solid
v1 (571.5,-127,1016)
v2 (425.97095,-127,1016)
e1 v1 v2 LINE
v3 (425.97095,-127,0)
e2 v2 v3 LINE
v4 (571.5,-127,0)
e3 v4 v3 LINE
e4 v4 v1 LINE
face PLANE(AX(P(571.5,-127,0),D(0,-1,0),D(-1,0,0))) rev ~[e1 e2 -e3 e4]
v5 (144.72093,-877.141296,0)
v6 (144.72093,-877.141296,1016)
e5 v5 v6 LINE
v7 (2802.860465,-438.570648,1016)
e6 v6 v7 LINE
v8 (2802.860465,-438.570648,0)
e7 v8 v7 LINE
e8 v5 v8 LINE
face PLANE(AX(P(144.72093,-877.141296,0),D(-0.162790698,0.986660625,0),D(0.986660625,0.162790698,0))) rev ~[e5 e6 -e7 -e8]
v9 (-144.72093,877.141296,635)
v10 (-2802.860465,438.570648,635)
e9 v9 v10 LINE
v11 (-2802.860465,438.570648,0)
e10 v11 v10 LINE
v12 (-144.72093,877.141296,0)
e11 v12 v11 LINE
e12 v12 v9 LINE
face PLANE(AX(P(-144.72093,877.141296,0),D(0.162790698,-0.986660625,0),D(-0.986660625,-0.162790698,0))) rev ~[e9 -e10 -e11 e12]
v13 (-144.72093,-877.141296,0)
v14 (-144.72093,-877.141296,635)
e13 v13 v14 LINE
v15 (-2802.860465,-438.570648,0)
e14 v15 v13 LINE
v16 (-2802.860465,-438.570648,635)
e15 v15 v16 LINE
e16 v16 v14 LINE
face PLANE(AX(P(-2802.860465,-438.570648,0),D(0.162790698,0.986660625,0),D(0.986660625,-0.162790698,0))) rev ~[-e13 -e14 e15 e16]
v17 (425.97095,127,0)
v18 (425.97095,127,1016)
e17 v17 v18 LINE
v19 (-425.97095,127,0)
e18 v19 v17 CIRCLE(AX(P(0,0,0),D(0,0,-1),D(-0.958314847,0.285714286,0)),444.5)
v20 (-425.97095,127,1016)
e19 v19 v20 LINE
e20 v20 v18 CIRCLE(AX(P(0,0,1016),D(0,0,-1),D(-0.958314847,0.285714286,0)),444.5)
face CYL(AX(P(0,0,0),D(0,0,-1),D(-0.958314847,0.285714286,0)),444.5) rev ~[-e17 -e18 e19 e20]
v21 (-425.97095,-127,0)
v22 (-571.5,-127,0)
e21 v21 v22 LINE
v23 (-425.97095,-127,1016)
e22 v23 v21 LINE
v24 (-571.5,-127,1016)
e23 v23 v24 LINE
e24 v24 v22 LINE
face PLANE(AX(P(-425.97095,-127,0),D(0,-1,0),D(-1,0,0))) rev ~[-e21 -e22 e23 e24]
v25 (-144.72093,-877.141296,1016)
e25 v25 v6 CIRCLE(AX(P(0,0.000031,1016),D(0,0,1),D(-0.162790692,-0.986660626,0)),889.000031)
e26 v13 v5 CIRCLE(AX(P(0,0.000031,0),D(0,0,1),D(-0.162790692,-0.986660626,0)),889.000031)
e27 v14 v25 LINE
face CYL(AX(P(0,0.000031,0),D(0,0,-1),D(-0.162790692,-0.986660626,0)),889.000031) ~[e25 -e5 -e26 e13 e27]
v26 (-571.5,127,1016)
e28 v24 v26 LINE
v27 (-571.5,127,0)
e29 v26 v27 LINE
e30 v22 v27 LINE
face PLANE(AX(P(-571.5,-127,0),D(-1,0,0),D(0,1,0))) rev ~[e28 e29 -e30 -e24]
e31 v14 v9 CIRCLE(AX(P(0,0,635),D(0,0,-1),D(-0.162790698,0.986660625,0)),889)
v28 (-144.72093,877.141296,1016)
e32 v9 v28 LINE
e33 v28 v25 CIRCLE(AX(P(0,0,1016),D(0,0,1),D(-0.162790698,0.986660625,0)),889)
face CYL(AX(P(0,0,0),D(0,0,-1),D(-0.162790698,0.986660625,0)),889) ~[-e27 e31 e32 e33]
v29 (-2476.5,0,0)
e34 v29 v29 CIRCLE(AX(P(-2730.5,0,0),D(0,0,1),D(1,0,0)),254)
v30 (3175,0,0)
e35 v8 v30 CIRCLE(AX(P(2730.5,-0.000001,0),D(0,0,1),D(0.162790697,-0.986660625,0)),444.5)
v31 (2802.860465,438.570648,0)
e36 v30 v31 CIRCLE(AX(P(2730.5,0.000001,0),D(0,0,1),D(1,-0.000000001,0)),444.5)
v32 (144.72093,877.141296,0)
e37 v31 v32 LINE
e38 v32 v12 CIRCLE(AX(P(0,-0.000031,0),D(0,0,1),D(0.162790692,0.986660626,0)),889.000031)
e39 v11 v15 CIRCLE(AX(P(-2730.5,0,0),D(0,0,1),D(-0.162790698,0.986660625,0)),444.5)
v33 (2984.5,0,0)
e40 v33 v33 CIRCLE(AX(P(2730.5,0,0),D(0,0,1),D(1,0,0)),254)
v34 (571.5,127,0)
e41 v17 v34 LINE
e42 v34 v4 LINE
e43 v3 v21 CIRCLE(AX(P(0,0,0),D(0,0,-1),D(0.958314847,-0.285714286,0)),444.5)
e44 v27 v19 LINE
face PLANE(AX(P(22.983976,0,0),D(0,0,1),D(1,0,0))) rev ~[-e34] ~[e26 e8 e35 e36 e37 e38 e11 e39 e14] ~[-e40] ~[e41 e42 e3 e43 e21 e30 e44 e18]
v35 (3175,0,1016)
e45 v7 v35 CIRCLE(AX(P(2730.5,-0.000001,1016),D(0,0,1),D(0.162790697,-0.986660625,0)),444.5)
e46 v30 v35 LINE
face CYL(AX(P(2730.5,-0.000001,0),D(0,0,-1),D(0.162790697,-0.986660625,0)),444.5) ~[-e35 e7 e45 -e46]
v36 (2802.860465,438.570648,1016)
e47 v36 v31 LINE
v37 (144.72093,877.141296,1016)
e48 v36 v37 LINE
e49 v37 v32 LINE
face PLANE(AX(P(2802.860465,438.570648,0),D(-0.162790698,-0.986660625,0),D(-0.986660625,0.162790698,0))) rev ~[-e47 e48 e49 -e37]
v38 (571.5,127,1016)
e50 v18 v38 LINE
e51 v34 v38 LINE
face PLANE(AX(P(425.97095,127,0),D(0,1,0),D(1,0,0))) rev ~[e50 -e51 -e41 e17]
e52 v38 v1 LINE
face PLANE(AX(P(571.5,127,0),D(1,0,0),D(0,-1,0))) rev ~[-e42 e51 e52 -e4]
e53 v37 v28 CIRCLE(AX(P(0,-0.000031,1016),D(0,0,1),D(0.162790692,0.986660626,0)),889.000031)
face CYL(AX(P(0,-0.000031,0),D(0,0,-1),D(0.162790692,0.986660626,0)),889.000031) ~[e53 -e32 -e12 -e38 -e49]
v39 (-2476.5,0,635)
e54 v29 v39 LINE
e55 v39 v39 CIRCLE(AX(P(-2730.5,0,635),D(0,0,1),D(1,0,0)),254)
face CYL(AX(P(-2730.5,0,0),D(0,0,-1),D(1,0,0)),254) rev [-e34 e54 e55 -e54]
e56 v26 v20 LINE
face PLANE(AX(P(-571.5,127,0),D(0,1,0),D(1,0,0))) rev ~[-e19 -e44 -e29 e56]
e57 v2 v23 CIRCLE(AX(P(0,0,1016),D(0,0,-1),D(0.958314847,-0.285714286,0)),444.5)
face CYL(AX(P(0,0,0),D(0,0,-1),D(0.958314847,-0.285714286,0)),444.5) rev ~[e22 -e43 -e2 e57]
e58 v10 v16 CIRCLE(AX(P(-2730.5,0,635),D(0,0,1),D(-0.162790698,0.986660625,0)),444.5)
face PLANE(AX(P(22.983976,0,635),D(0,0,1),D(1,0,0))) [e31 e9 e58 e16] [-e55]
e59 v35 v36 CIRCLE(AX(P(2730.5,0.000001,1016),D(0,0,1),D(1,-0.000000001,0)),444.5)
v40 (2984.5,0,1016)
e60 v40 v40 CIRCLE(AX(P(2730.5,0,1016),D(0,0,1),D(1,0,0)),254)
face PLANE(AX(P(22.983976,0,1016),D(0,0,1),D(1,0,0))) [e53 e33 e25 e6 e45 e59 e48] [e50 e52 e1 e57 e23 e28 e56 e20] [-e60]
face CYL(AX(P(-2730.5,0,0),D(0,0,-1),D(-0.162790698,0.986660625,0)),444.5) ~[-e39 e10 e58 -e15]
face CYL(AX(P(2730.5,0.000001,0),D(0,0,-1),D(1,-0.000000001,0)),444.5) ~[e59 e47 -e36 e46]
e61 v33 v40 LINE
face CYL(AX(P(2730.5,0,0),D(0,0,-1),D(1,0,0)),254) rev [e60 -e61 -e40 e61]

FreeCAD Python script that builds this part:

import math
import FreeCAD as App
import Part
import Sketcher
from FreeCAD import Vector
Q = App.Units.Quantity

doc = App.newDocument("Part")
body = doc.addObject("PartDesign::Body", "Body")

# Sketch on XY plane
sketch1 = doc.addObject("Sketcher::SketchObject", "Sketch")
body.addObject(sketch1)
sketch1.AttachmentSupport = (doc.XY_Plane, [""])
sketch1.MapMode = "FlatFace"
sketch1.addGeometry([
    Part.ArcOfCircle(Part.Circle(Vector(0, 0.000031, 0), Vector(0, 0, 1), 889.000031), math.radians(-99.368915), math.radians(-80.631085)),  # 0
    Part.LineSegment(Vector(144.72093, -877.141296, 0), Vector(2802.860465, -438.570648, 0)),  # 1
    Part.ArcOfCircle(Part.Circle(Vector(2730.5, -0.000001, 0), Vector(0, 0, 1), 444.5), math.radians(-80.631084), math.radians(0)),  # 2
    Part.ArcOfCircle(Part.Circle(Vector(2730.5, 0.000001, 0), Vector(0, 0, 1), 444.5), math.radians(0), math.radians(80.631084)),  # 3
    Part.LineSegment(Vector(2802.860465, 438.570648, 0), Vector(144.72093, 877.141296, 0)),  # 4
    Part.ArcOfCircle(Part.Circle(Vector(0, -0.000031, 0), Vector(0, 0, 1), 889.000031), math.radians(80.631085), math.radians(99.368915)),  # 5
    Part.ArcOfCircle(Part.Circle(Vector(0, 0, 0), Vector(0, 0, 1), 889), math.radians(99.368916), math.radians(260.631084)),  # 6
    Part.LineSegment(Vector(-571.5, 127, 0), Vector(-425.97095, 127, 0)),  # 7
    Part.ArcOfCircle(Part.Circle(Vector(0, 0, 0), Vector(0, 0, 1), 444.5), math.radians(16.60155), math.radians(163.39845)),  # 8
    Part.LineSegment(Vector(425.97095, 127, 0), Vector(571.5, 127, 0)),  # 9
    Part.LineSegment(Vector(571.5, 127, 0), Vector(571.5, -127, 0)),  # 10
    Part.LineSegment(Vector(571.5, -127, 0), Vector(425.97095, -127, 0)),  # 11
    Part.ArcOfCircle(Part.Circle(Vector(0, 0, 0), Vector(0, 0, 1), 444.5), math.radians(-163.39845), math.radians(-16.60155)),  # 12
    Part.LineSegment(Vector(-425.97095, -127, 0), Vector(-571.5, -127, 0)),  # 13
    Part.LineSegment(Vector(-571.5, -127, 0), Vector(-571.5, 127, 0)),  # 14
    Part.Circle(Vector(2730.5, 0, 0), Vector(0, 0, 1), 254),  # 15
], False)
sketch1.addConstraint([
    Sketcher.Constraint("Coincident", 0, 2, 1, 1),
    Sketcher.Constraint("Tangent", 1, 2, 2, 1),
    Sketcher.Constraint("Tangent", 2, 2, 3, 1),
    Sketcher.Constraint("Tangent", 3, 2, 4, 1),
    Sketcher.Constraint("Coincident", 4, 2, 5, 1),
    Sketcher.Constraint("Coincident", 5, 2, 6, 1),
    Sketcher.Constraint("Coincident", 6, 2, 0, 1),
    Sketcher.Constraint("Coincident", 7, 2, 8, 2),
    Sketcher.Constraint("Coincident", 8, 1, 9, 1),
    Sketcher.Constraint("Coincident", 9, 2, 10, 1),
    Sketcher.Constraint("Coincident", 10, 2, 11, 1),
    Sketcher.Constraint("Coincident", 11, 2, 12, 2),
    Sketcher.Constraint("Coincident", 12, 1, 13, 1),
    Sketcher.Constraint("Coincident", 13, 2, 14, 1),
    Sketcher.Constraint("Coincident", 14, 2, 7, 1),
    Sketcher.Constraint("Horizontal", 7),
    Sketcher.Constraint("Horizontal", 9),
    Sketcher.Constraint("Vertical", 10),
    Sketcher.Constraint("Horizontal", 11),
    Sketcher.Constraint("Horizontal", 13),
    Sketcher.Constraint("Vertical", 14),
    Sketcher.Constraint("Coincident", 6, 3, -1, 1),
    Sketcher.Constraint("Coincident", 8, 3, -1, 1),
    Sketcher.Constraint("Coincident", 12, 3, -1, 1),
    Sketcher.Constraint("Coincident", 15, 3, 2, 3),
    Sketcher.Constraint("Equal", 2, 3),
    Sketcher.Constraint("Equal", 0, 5),
    Sketcher.Constraint("Equal", 3, 8),
    Sketcher.Constraint("Equal", 8, 12),
    Sketcher.Constraint("Symmetric", 0, 3, 5, 3, -1, 1),
    Sketcher.Constraint("Symmetric", 9, 2, 13, 2, -1, 1),
    Sketcher.Constraint("PointOnObject", 2, 3, -1),
    Sketcher.Constraint("PointOnObject", 2, 2, -1),
    Sketcher.Constraint("Horizontal", 4, 2, 5, 2),
    Sketcher.Constraint("Horizontal", 0, 2, 6, 2),
    Sketcher.Constraint("Horizontal", 9, 2, 14, 2),
    Sketcher.Constraint("Equal", 9, 11),
    Sketcher.Constraint("Equal", 1, 4),
    Sketcher.Constraint("Diameter", 15, Q("20 in")),
    Sketcher.Constraint("Radius", 6, Q("35 in")),
    Sketcher.Constraint("Radius", 2, Q("17.5 in")),
    Sketcher.Constraint("DistanceY", 10, 2, 10, 1, Q("10 in")),
    Sketcher.Constraint("DistanceX", -1, 1, 2, 2, Q("125 in")),
    Sketcher.Constraint("DistanceX", -1, 1, 9, 2, Q("22.5 in")),
    Sketcher.Constraint("Radius", 0, Q("889.000031 mm")),
    Sketcher.Constraint("DistanceX", -1, 1, 4, 2, Q("144.72093 mm")),
])
pad1 = doc.addObject("PartDesign::Pad", "Pad")
body.addObject(pad1)
pad1.Profile = sketch1
pad1.Length = Q("40 in")

# Sketch on XY plane
sketch2 = doc.addObject("Sketcher::SketchObject", "Sketch001")
body.addObject(sketch2)
sketch2.AttachmentSupport = (doc.XY_Plane, [""])
sketch2.MapMode = "FlatFace"
sketch2.addGeometry([
    Part.ArcOfCircle(Part.Circle(Vector(0, 0.000031, 0), Vector(0, 0, 1), 889.000031), math.radians(-99.368915), math.radians(-80.631085)),  # 0
    Part.LineSegment(Vector(144.72093, -877.141296, 0), Vector(2802.860465, -438.570648, 0)),  # 1
    Part.ArcOfCircle(Part.Circle(Vector(2730.5, -0.000001, 0), Vector(0, 0, 1), 444.5), math.radians(-80.631084), math.radians(0)),  # 2
    Part.ArcOfCircle(Part.Circle(Vector(2730.5, 0.000001, 0), Vector(0, 0, 1), 444.5), math.radians(0), math.radians(80.631084)),  # 3
    Part.LineSegment(Vector(2802.860465, 438.570648, 0), Vector(144.72093, 877.141296, 0)),  # 4
    Part.ArcOfCircle(Part.Circle(Vector(0, -0.000031, 0), Vector(0, 0, 1), 889.000031), math.radians(80.631085), math.radians(99.368915)),  # 5
    Part.LineSegment(Vector(-144.72093, 877.141296, 0), Vector(-2802.860465, 438.570648, 0)),  # 6
    Part.ArcOfCircle(Part.Circle(Vector(-2730.5, 0, 0), Vector(0, 0, 1), 444.5), math.radians(99.368916), math.radians(260.631084)),  # 7
    Part.LineSegment(Vector(-2802.860465, -438.570648, 0), Vector(-144.72093, -877.141296, 0)),  # 8
    Part.Circle(Vector(-2730.5, 0, 0), Vector(0, 0, 1), 254),  # 9
    Part.LineSegment(Vector(-571.5, 127, 0), Vector(-425.97095, 127, 0)),  # 10
    Part.ArcOfCircle(Part.Circle(Vector(0, 0, 0), Vector(0, 0, 1), 444.5), math.radians(16.60155), math.radians(163.39845)),  # 11
    Part.LineSegment(Vector(425.97095, 127, 0), Vector(571.5, 127, 0)),  # 12
    Part.LineSegment(Vector(571.5, 127, 0), Vector(571.5, -127, 0)),  # 13
    Part.LineSegment(Vector(571.5, -127, 0), Vector(425.97095, -127, 0)),  # 14
    Part.ArcOfCircle(Part.Circle(Vector(0, 0, 0), Vector(0, 0, 1), 444.5), math.radians(-163.39845), math.radians(-16.60155)),  # 15
    Part.LineSegment(Vector(-425.97095, -127, 0), Vector(-571.5, -127, 0)),  # 16
    Part.LineSegment(Vector(-571.5, -127, 0), Vector(-571.5, 127, 0)),  # 17
    Part.Circle(Vector(2730.5, 0, 0), Vector(0, 0, 1), 254),  # 18
], False)
sketch2.addConstraint([
    Sketcher.Constraint("Coincident", 0, 2, 1, 1),
    Sketcher.Constraint("Tangent", 1, 2, 2, 1),
    Sketcher.Constraint("Tangent", 2, 2, 3, 1),
    Sketcher.Constraint("Tangent", 3, 2, 4, 1),
    Sketcher.Constraint("Coincident", 4, 2, 5, 1),
    Sketcher.Constraint("Coincident", 5, 2, 6, 1),
    Sketcher.Constraint("Tangent", 6, 2, 7, 1),
    Sketcher.Constraint("Tangent", 7, 2, 8, 1),
    Sketcher.Constraint("Coincident", 8, 2, 0, 1),
    Sketcher.Constraint("Coincident", 10, 2, 11, 2),
    Sketcher.Constraint("Coincident", 11, 1, 12, 1),
    Sketcher.Constraint("Coincident", 12, 2, 13, 1),
    Sketcher.Constraint("Coincident", 13, 2, 14, 1),
    Sketcher.Constraint("Coincident", 14, 2, 15, 2),
    Sketcher.Constraint("Coincident", 15, 1, 16, 1),
    Sketcher.Constraint("Coincident", 16, 2, 17, 1),
    Sketcher.Constraint("Coincident", 17, 2, 10, 1),
    Sketcher.Constraint("Horizontal", 10),
    Sketcher.Constraint("Horizontal", 12),
    Sketcher.Constraint("Vertical", 13),
    Sketcher.Constraint("Horizontal", 14),
    Sketcher.Constraint("Horizontal", 16),
    Sketcher.Constraint("Vertical", 17),
    Sketcher.Constraint("Coincident", 11, 3, -1, 1),
    Sketcher.Constraint("Coincident", 15, 3, -1, 1),
    Sketcher.Constraint("Coincident", 9, 3, 7, 3),
    Sketcher.Constraint("Coincident", 18, 3, 2, 3),
    Sketcher.Constraint("Equal", 2, 3),
    Sketcher.Constraint("Equal", 0, 5),
    Sketcher.Constraint("Equal", 3, 7),
    Sketcher.Constraint("Equal", 7, 11),
    Sketcher.Constraint("Equal", 11, 15),
    Sketcher.Constraint("Equal", 9, 18),
    Sketcher.Constraint("Symmetric", 0, 3, 5, 3, -1, 1),
    Sketcher.Constraint("Symmetric", 2, 3, 7, 3, -1, 1),
    Sketcher.Constraint("Symmetric", 12, 2, 16, 2, -1, 1),
    Sketcher.Constraint("PointOnObject", 0, 3, -2),
    Sketcher.Constraint("PointOnObject", 2, 3, -1),
    Sketcher.Constraint("PointOnObject", 2, 2, -1),
    Sketcher.Constraint("Horizontal", 12, 2, 17, 2),
    Sketcher.Constraint("Equal", 12, 14),
    Sketcher.Constraint("Equal", 1, 4),
    Sketcher.Constraint("Equal", 4, 6),
    Sketcher.Constraint("Equal", 6, 8),
    Sketcher.Constraint("Diameter", 9, Q("20 in")),
    Sketcher.Constraint("Radius", 2, Q("17.5 in")),
    Sketcher.Constraint("DistanceY", 13, 2, 13, 1, Q("10 in")),
    Sketcher.Constraint("DistanceX", -1, 1, 2, 2, Q("125 in")),
    Sketcher.Constraint("DistanceX", -1, 1, 12, 2, Q("22.5 in")),
    Sketcher.Constraint("Radius", 0, Q("889.000031 mm")),
    Sketcher.Constraint("DistanceY", 1, 2, -1, 1, Q("438.570648 mm")),
    Sketcher.Constraint("DistanceX", -1, 1, 4, 2, Q("144.72093 mm")),
])
pad2 = doc.addObject("PartDesign::Pad", "Pad001")
body.addObject(pad2)
pad2.Profile = sketch2
pad2.Length = Q("25 in")

doc.recompute()
